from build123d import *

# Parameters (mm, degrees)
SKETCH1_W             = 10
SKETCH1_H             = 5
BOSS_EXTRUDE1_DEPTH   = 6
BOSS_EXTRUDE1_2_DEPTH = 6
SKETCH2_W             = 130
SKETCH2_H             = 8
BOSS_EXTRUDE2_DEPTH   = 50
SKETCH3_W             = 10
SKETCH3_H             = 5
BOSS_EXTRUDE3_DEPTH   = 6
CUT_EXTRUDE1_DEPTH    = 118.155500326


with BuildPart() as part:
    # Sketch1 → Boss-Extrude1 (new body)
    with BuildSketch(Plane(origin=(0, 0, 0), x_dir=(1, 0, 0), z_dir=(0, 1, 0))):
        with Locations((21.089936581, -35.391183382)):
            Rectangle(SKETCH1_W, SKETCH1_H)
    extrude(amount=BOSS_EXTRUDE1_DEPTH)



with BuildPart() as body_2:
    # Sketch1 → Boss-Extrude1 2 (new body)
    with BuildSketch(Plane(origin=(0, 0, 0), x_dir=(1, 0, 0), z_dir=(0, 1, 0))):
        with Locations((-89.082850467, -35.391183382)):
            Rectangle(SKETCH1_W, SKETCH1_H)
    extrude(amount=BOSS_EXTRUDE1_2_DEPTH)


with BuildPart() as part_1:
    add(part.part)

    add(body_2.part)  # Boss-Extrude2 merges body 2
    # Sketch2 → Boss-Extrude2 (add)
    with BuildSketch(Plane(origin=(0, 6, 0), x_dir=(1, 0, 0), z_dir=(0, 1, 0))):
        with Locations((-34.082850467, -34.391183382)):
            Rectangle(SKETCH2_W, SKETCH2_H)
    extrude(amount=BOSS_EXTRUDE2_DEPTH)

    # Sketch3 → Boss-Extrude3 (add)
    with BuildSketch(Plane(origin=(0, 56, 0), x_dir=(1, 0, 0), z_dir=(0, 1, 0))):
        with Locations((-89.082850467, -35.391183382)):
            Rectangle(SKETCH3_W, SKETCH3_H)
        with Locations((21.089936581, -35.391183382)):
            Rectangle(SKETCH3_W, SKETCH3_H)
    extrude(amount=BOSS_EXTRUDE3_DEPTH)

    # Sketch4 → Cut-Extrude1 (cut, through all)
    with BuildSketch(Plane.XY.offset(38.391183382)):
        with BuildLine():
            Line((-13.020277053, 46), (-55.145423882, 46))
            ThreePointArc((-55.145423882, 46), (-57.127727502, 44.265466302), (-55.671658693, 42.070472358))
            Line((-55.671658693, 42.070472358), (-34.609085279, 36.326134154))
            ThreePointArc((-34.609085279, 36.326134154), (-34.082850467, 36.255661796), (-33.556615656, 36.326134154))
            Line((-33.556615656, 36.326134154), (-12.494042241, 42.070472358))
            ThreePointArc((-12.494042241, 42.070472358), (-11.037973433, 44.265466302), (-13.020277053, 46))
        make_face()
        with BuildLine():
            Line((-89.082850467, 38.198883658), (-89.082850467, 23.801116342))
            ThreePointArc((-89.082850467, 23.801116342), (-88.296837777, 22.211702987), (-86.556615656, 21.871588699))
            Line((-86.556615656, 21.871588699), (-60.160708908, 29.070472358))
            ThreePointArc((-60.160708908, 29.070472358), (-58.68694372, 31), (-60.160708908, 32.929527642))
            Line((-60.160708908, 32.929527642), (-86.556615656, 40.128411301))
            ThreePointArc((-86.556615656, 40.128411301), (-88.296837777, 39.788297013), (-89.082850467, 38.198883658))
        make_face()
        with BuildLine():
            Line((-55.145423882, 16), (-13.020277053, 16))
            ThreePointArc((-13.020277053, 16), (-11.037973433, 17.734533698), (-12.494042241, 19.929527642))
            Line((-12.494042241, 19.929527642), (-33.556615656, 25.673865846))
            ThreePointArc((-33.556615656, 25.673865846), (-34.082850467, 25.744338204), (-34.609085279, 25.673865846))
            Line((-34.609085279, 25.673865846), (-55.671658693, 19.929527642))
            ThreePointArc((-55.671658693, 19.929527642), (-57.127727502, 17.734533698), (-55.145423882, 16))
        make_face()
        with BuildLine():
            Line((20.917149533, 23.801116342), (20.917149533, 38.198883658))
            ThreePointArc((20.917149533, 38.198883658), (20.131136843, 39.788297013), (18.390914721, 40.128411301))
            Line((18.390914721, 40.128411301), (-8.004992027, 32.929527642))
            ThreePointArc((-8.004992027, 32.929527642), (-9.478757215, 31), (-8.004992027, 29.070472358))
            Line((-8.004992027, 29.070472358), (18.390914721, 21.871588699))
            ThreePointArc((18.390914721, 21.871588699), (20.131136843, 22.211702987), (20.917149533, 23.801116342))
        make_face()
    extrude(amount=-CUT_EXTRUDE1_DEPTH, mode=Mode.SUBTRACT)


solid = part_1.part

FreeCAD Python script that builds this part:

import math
import FreeCAD as App
import Part
import Sketcher

V = App.Vector

doc = App.newDocument("Part")
params = doc.addObject("Spreadsheet::Sheet", "Params")
for row, (alias, value) in enumerate([
    ("sketch1_width", "10 mm"),
    ("sketch1_height", "5 mm"),
    ("pad1_length", "6 mm"),
    ("sketch2_width", "10 mm"),
    ("sketch2_height", "5 mm"),
    ("pad2_length", "6 mm"),
    ("sketch3_width", "130 mm"),
    ("sketch3_height", "8 mm"),
    ("pad3_length", "50 mm"),
    ("sketch4_width", "10 mm"),
    ("sketch4_height", "5 mm"),
    ("pad4_length", "6 mm"),
    ("sketch5_radius", "2 mm"),
], start=1):
    params.set(f"A{row}", alias)
    params.set(f"B{row}", "=" + value)
    params.setAlias(f"B{row}", alias)

body = doc.addObject("PartDesign::Body", "Body")

sketch1 = body.newObject("Sketcher::SketchObject", "Sketch")
sketch1.AttachmentSupport = (doc.getObject("XZ_Plane"), [""])
sketch1.MapMode = "FlatFace"
sketch1.addGeometry(Part.LineSegment(V(16, 33, 0), V(16, 38, 0)), False)
sketch1.addGeometry(Part.LineSegment(V(16, 38, 0), V(26, 38, 0)), False)
sketch1.addGeometry(Part.LineSegment(V(26, 38, 0), V(26, 33, 0)), False)
sketch1.addGeometry(Part.LineSegment(V(26, 33, 0), V(16, 33, 0)), False)
sketch1.addConstraint(Sketcher.Constraint("Coincident", 0, 2, 1, 1))
sketch1.addConstraint(Sketcher.Constraint("Coincident", 1, 2, 2, 1))
sketch1.addConstraint(Sketcher.Constraint("Coincident", 2, 2, 3, 1))
sketch1.addConstraint(Sketcher.Constraint("Coincident", 3, 2, 0, 1))
sketch1.addConstraint(Sketcher.Constraint("Vertical", 0))
sketch1.addConstraint(Sketcher.Constraint("Horizontal", 1))
sketch1.addConstraint(Sketcher.Constraint("Vertical", 2))
sketch1.addConstraint(Sketcher.Constraint("Horizontal", 3))
sketch1.addConstraint(Sketcher.Constraint("DistanceX", 1, 1, 1, 2, 10.0))
sketch1.addConstraint(Sketcher.Constraint("DistanceY", 0, 1, 0, 2, 5.0))
sketch1.addConstraint(Sketcher.Constraint("DistanceX", -1, 1, 0, 2, 16.089937))
sketch1.addConstraint(Sketcher.Constraint("DistanceY", -1, 1, 0, 2, 37.891183))
sketch1.setExpression("Constraints[8]", "Params.sketch1_width")
sketch1.setExpression("Constraints[9]", "Params.sketch1_height")
pad1 = body.newObject("PartDesign::Pad", "Pad")
pad1.Profile = sketch1
pad1.setExpression("Length", "Params.pad1_length")
pad1.Reversed = True
body2 = doc.addObject("PartDesign::Body", "Body001")

sketch2 = body2.newObject("Sketcher::SketchObject", "Sketch001")
sketch2.AttachmentSupport = (doc.getObject("XZ_Plane001"), [""])
sketch2.MapMode = "FlatFace"
sketch2.addGeometry(Part.LineSegment(V(-94, 33, 0), V(-94, 38, 0)), False)
sketch2.addGeometry(Part.LineSegment(V(-94, 38, 0), V(-84, 38, 0)), False)
sketch2.addGeometry(Part.LineSegment(V(-84, 38, 0), V(-84, 33, 0)), False)
sketch2.addGeometry(Part.LineSegment(V(-84, 33, 0), V(-94, 33, 0)), False)
sketch2.addConstraint(Sketcher.Constraint("Coincident", 0, 2, 1, 1))
sketch2.addConstraint(Sketcher.Constraint("Coincident", 1, 2, 2, 1))
sketch2.addConstraint(Sketcher.Constraint("Coincident", 2, 2, 3, 1))
sketch2.addConstraint(Sketcher.Constraint("Coincident", 3, 2, 0, 1))
sketch2.addConstraint(Sketcher.Constraint("Vertical", 0))
sketch2.addConstraint(Sketcher.Constraint("Horizontal", 1))
sketch2.addConstraint(Sketcher.Constraint("Vertical", 2))
sketch2.addConstraint(Sketcher.Constraint("Horizontal", 3))
sketch2.addConstraint(Sketcher.Constraint("DistanceX", 1, 1, 1, 2, 10.0))
sketch2.addConstraint(Sketcher.Constraint("DistanceY", 0, 1, 0, 2, 5.0))
sketch2.addConstraint(Sketcher.Constraint("DistanceX", 0, 2, -1, 1, 94.08285))
sketch2.addConstraint(Sketcher.Constraint("DistanceY", -1, 1, 0, 2, 37.891183))
sketch2.setExpression("Constraints[8]", "Params.sketch2_width")
sketch2.setExpression("Constraints[9]", "Params.sketch2_height")
pad2 = body2.newObject("PartDesign::Pad", "Pad001")
pad2.Profile = sketch2
pad2.setExpression("Length", "Params.pad2_length")
pad2.Reversed = True
body.AllowCompound = True
doc.recompute()

boolean = body.newObject("PartDesign::Boolean", "Boolean")
boolean.Type = "Fuse"
boolean.addObjects([body2])

sketch3 = body.newObject("Sketcher::SketchObject", "Sketch002")
sketch3.AttachmentSupport = (doc.getObject("XZ_Plane"), [""])
sketch3.MapMode = "FlatFace"
sketch3.AttachmentOffset = App.Placement(V(0, 0, -6), App.Rotation())
sketch3.addGeometry(Part.LineSegment(V(-99, 30, 0), V(-99, 38, 0)), False)
sketch3.addGeometry(Part.LineSegment(V(-99, 38, 0), V(31, 38, 0)), False)
sketch3.addGeometry(Part.LineSegment(V(31, 38, 0), V(31, 30, 0)), False)
sketch3.addGeometry(Part.LineSegment(V(31, 30, 0), V(-99, 30, 0)), False)
sketch3.addConstraint(Sketcher.Constraint("Coincident", 0, 2, 1, 1))
sketch3.addConstraint(Sketcher.Constraint("Coincident", 1, 2, 2, 1))
sketch3.addConstraint(Sketcher.Constraint("Coincident", 2, 2, 3, 1))
sketch3.addConstraint(Sketcher.Constraint("Coincident", 3, 2, 0, 1))
sketch3.addConstraint(Sketcher.Constraint("Vertical", 0))
sketch3.addConstraint(Sketcher.Constraint("Horizontal", 1))
sketch3.addConstraint(Sketcher.Constraint("Vertical", 2))
sketch3.addConstraint(Sketcher.Constraint("Horizontal", 3))
sketch3.addConstraint(Sketcher.Constraint("DistanceX", 1, 1, 1, 2, 130.0))
sketch3.addConstraint(Sketcher.Constraint("DistanceY", 0, 1, 0, 2, 8.0))
sketch3.addConstraint(Sketcher.Constraint("DistanceX", 0, 2, -1, 1, 99.08285))
sketch3.addConstraint(Sketcher.Constraint("DistanceY", -1, 1, 0, 2, 38.391183))
sketch3.setExpression("Constraints[8]", "Params.sketch3_width")
sketch3.setExpression("Constraints[9]", "Params.sketch3_height")
pad3 = body.newObject("PartDesign::Pad", "Pad002")
pad3.Profile = sketch3
pad3.setExpression("Length", "Params.pad3_length")
pad3.Reversed = True

sketch4 = body.newObject("Sketcher::SketchObject", "Sketch003")
sketch4.AttachmentSupport = (doc.getObject("XZ_Plane"), [""])
sketch4.MapMode = "FlatFace"
sketch4.AttachmentOffset = App.Placement(V(0, 0, -56), App.Rotation())
sketch4.addGeometry(Part.LineSegment(V(-94, 33, 0), V(-94, 38, 0)), False)
sketch4.addGeometry(Part.LineSegment(V(-94, 38, 0), V(-84, 38, 0)), False)
sketch4.addGeometry(Part.LineSegment(V(-84, 38, 0), V(-84, 33, 0)), False)
sketch4.addGeometry(Part.LineSegment(V(-84, 33, 0), V(-94, 33, 0)), False)
sketch4.addGeometry(Part.LineSegment(V(16, 33, 0), V(16, 38, 0)), False)
sketch4.addGeometry(Part.LineSegment(V(16, 38, 0), V(26, 38, 0)), False)
sketch4.addGeometry(Part.LineSegment(V(26, 38, 0), V(26, 33, 0)), False)
sketch4.addGeometry(Part.LineSegment(V(26, 33, 0), V(16, 33, 0)), False)
sketch4.addConstraint(Sketcher.Constraint("Coincident", 0, 2, 1, 1))
sketch4.addConstraint(Sketcher.Constraint("Coincident", 1, 2, 2, 1))
sketch4.addConstraint(Sketcher.Constraint("Coincident", 2, 2, 3, 1))
sketch4.addConstraint(Sketcher.Constraint("Coincident", 3, 2, 0, 1))
sketch4.addConstraint(Sketcher.Constraint("Coincident", 4, 2, 5, 1))
sketch4.addConstraint(Sketcher.Constraint("Coincident", 5, 2, 6, 1))
sketch4.addConstraint(Sketcher.Constraint("Coincident", 6, 2, 7, 1))
sketch4.addConstraint(Sketcher.Constraint("Coincident", 7, 2, 4, 1))
sketch4.addConstraint(Sketcher.Constraint("Vertical", 0))
sketch4.addConstraint(Sketcher.Constraint("Horizontal", 1))
sketch4.addConstraint(Sketcher.Constraint("Vertical", 2))
sketch4.addConstraint(Sketcher.Constraint("Horizontal", 3))
sketch4.addConstraint(Sketcher.Constraint("Vertical", 4))
sketch4.addConstraint(Sketcher.Constraint("Horizontal", 5))
sketch4.addConstraint(Sketcher.Constraint("Vertical", 6))
sketch4.addConstraint(Sketcher.Constraint("Horizontal", 7))
sketch4.addConstraint(Sketcher.Constraint("Horizontal", 1, 2, 4, 2))
sketch4.addConstraint(Sketcher.Constraint("Horizontal", 3, 2, 6, 2))
sketch4.addConstraint(Sketcher.Constraint("Equal", 3, 5))
sketch4.addConstraint(Sketcher.Constraint("DistanceX", 1, 1, 1, 2, 10.0))
sketch4.addConstraint(Sketcher.Constraint("DistanceY", 0, 1, 0, 2, 5.0))
sketch4.addConstraint(Sketcher.Constraint("DistanceX", 0, 2, -1, 1, 94.08285))
sketch4.addConstraint(Sketcher.Constraint("DistanceY", -1, 1, 0, 2, 37.891183))
sketch4.addConstraint(Sketcher.Constraint("DistanceX", -1, 1, 4, 2, 16.089937))
sketch4.setExpression("Constraints[19]", "Params.sketch4_width")
sketch4.setExpression("Constraints[20]", "Params.sketch4_height")
pad4 = body.newObject("PartDesign::Pad", "Pad003")
pad4.Profile = sketch4
pad4.setExpression("Length", "Params.pad4_length")
pad4.Reversed = True

sketch5 = body.newObject("Sketcher::SketchObject", "Sketch004")
sketch5.AttachmentSupport = (doc.getObject("XY_Plane"), [""])
sketch5.MapMode = "FlatFace"
sketch5.AttachmentOffset = App.Placement(V(0, 0, 38.391183), App.Rotation())
sketch5.addGeometry(Part.LineSegment(V(-13, 46, 0), V(-55.1, 46, 0)), False)
sketch5.addGeometry(Part.ArcOfCircle(Part.Circle(V(-55.1, 44, 0), V(0, 0, 1), 2), math.radians(90), math.radians(255)), False)
sketch5.addGeometry(Part.LineSegment(V(-55.7, 42.1, 0), V(-34.6, 36.3, 0)), False)
sketch5.addGeometry(Part.ArcOfCircle(Part.Circle(V(-34.1, 38.3, 0), V(0, 0, 1), 2), math.radians(-105), math.radians(-75)), False)
sketch5.addGeometry(Part.LineSegment(V(-33.6, 36.3, 0), V(-12.5, 42.1, 0)), False)
sketch5.addGeometry(Part.ArcOfCircle(Part.Circle(V(-13, 44, 0), V(0, 0, 1), 2), math.radians(-75), math.radians(90)), False)
sketch5.addGeometry(Part.LineSegment(V(-89.1, 38.2, 0), V(-89.1, 23.8, 0)), False)
sketch5.addGeometry(Part.ArcOfCircle(Part.Circle(V(-87.1, 23.8, 0), V(0, 0, 1), 2), math.radians(180), math.radians(285)), False)
sketch5.addGeometry(Part.LineSegment(V(-86.6, 21.9, 0), V(-60.2, 29.1, 0)), False)
sketch5.addGeometry(Part.ArcOfCircle(Part.Circle(V(-60.7, 31, 0), V(0, 0, 1), 2), math.radians(-75), math.radians(75)), False)
sketch5.addGeometry(Part.LineSegment(V(-60.2, 32.9, 0), V(-86.6, 40.1, 0)), False)
sketch5.addGeometry(Part.ArcOfCircle(Part.Circle(V(-87.1, 38.2, 0), V(0, 0, 1), 2), math.radians(75), math.radians(180)), False)
sketch5.addGeometry(Part.LineSegment(V(-55.1, 16, 0), V(-13, 16, 0)), False)
sketch5.addGeometry(Part.ArcOfCircle(Part.Circle(V(-13, 18, 0), V(0, 0, 1), 2), math.radians(-90), math.radians(75)), False)
sketch5.addGeometry(Part.LineSegment(V(-12.5, 19.9, 0), V(-33.6, 25.7, 0)), False)
sketch5.addGeometry(Part.ArcOfCircle(Part.Circle(V(-34.1, 23.7, 0), V(0, 0, 1), 2), math.radians(75), math.radians(105)), False)
sketch5.addGeometry(Part.LineSegment(V(-34.6, 25.7, 0), V(-55.7, 19.9, 0)), False)
sketch5.addGeometry(Part.ArcOfCircle(Part.Circle(V(-55.1, 18, 0), V(0, 0, 1), 2), math.radians(105), math.radians(270)), False)
sketch5.addGeometry(Part.LineSegment(V(20.9, 23.8, 0), V(20.9, 38.2, 0)), False)
sketch5.addGeometry(Part.ArcOfCircle(Part.Circle(V(18.9, 38.2, 0), V(0, 0, 1), 2), math.radians(0), math.radians(105)), False)
sketch5.addGeometry(Part.LineSegment(V(18.4, 40.1, 0), V(-8, 32.9, 0)), False)
sketch5.addGeometry(Part.ArcOfCircle(Part.Circle(V(-7.5, 31, 0), V(0, 0, 1), 2), math.radians(105), math.radians(255)), False)
sketch5.addGeometry(Part.LineSegment(V(-8, 29.1, 0), V(18.4, 21.9, 0)), False)
sketch5.addGeometry(Part.ArcOfCircle(Part.Circle(V(18.9, 23.8, 0), V(0, 0, 1), 2), math.radians(-105), math.radians(0)), False)
sketch5.addConstraint(Sketcher.Constraint("Tangent", 0, 2, 1, 1))
sketch5.addConstraint(Sketcher.Constraint("Tangent", 1, 2, 2, 1))
sketch5.addConstraint(Sketcher.Constraint("Tangent", 2, 2, 3, 1))
sketch5.addConstraint(Sketcher.Constraint("Tangent", 3, 2, 4, 1))
sketch5.addConstraint(Sketcher.Constraint("Tangent", 4, 2, 5, 1))
sketch5.addConstraint(Sketcher.Constraint("Tangent", 5, 2, 0, 1))
sketch5.addConstraint(Sketcher.Constraint("Tangent", 6, 2, 7, 1))
sketch5.addConstraint(Sketcher.Constraint("Tangent", 7, 2, 8, 1))
sketch5.addConstraint(Sketcher.Constraint("Tangent", 8, 2, 9, 1))
sketch5.addConstraint(Sketcher.Constraint("Tangent", 9, 2, 10, 1))
sketch5.addConstraint(Sketcher.Constraint("Tangent", 10, 2, 11, 1))
sketch5.addConstraint(Sketcher.Constraint("Tangent", 11, 2, 6, 1))
sketch5.addConstraint(Sketcher.Constraint("Tangent", 12, 2, 13, 1))
sketch5.addConstraint(Sketcher.Constraint("Tangent", 13, 2, 14, 1))
sketch5.addConstraint(Sketcher.Constraint("Tangent", 14, 2, 15, 1))
sketch5.addConstraint(Sketcher.Constraint("Tangent", 15, 2, 16, 1))
sketch5.addConstraint(Sketcher.Constraint("Tangent", 16, 2, 17, 1))
sketch5.addConstraint(Sketcher.Constraint("Tangent", 17, 2, 12, 1))
sketch5.addConstraint(Sketcher.Constraint("Tangent", 18, 2, 19, 1))
sketch5.addConstraint(Sketcher.Constraint("Tangent", 19, 2, 20, 1))
sketch5.addConstraint(Sketcher.Constraint("Tangent", 20, 2, 21, 1))
sketch5.addConstraint(Sketcher.Constraint("Tangent", 21, 2, 22, 1))
sketch5.addConstraint(Sketcher.Constraint("Tangent", 22, 2, 23, 1))
sketch5.addConstraint(Sketcher.Constraint("Tangent", 23, 2, 18, 1))
sketch5.addConstraint(Sketcher.Constraint("Horizontal", 0))
sketch5.addConstraint(Sketcher.Constraint("Vertical", 6))
sketch5.addConstraint(Sketcher.Constraint("Horizontal", 12))
sketch5.addConstraint(Sketcher.Constraint("Vertical", 18))
sketch5.addConstraint(Sketcher.Constraint("Equal", 1, 3))
sketch5.addConstraint(Sketcher.Constraint("Equal", 3, 5))
sketch5.addConstraint(Sketcher.Constraint("Equal", 5, 7))
sketch5.addConstraint(Sketcher.Constraint("Equal", 7, 9))
sketch5.addConstraint(Sketcher.Constraint("Equal", 9, 11))
sketch5.addConstraint(Sketcher.Constraint("Equal", 11, 13))
sketch5.addConstraint(Sketcher.Constraint("Equal", 13, 15))
sketch5.addConstraint(Sketcher.Constraint("Equal", 15, 17))
sketch5.addConstraint(Sketcher.Constraint("Equal", 17, 19))
sketch5.addConstraint(Sketcher.Constraint("Equal", 19, 21))
sketch5.addConstraint(Sketcher.Constraint("Equal", 21, 23))
sketch5.addConstraint(Sketcher.Constraint("Parallel", 4, 8))
sketch5.addConstraint(Sketcher.Constraint("Parallel", 2, 10))
sketch5.addConstraint(Sketcher.Constraint("Parallel", 10, 14))
sketch5.addConstraint(Sketcher.Constraint("Parallel", 8, 16))
sketch5.addConstraint(Sketcher.Constraint("Parallel", 16, 20))
sketch5.addConstraint(Sketcher.Constraint("Parallel", 14, 22))
sketch5.addConstraint(Sketcher.Constraint("Horizontal", 11, 3, 19, 3))
sketch5.addConstraint(Sketcher.Constraint("Horizontal", 9, 3, 21, 3))
sketch5.addConstraint(Sketcher.Constraint("Horizontal", 7, 3, 23, 3))
sketch5.addConstraint(Sketcher.Constraint("Vertical", 5, 3, 13, 3))
sketch5.addConstraint(Sketcher.Constraint("Vertical", 3, 3, 15, 3))
sketch5.addConstraint(Sketcher.Constraint("Radius", 1, 2.0))
sketch5.addConstraint(Sketcher.Constraint("DistanceY", -1, 1, 1, 3, 44.0))
sketch5.addConstraint(Sketcher.Constraint("DistanceY", -1, 1, 9, 3, 31.0))
sketch5.addConstraint(Sketcher.Constraint("DistanceY", -1, 1, 13, 3, 18.0))
sketch5.addConstraint(Sketcher.Constraint("DistanceX", 7, 3, 3, 3, 53.0))
sketch5.addConstraint(Sketcher.Constraint("DistanceX", 3, 3, 19, 3, 53.0))
sketch5.addConstraint(Sketcher.Constraint("DistanceX", 0, 2, 0, 1, 42.125147))
sketch5.addConstraint(Sketcher.Constraint("DistanceY", 6, 2, 6, 1, 14.397767))
sketch5.addConstraint(Sketcher.Constraint("DistanceX", 3, 3, -1, 1, 34.08285))
sketch5.addConstraint(Sketcher.Constraint("DistanceY", -1, 1, 3, 3, 38.255662))
sketch5.setExpression("Constraints[50]", "Params.sketch5_radius")
pocket1 = body.newObject("PartDesign::Pocket", "Pocket")
pocket1.Profile = sketch5
pocket1.Type = "ThroughAll"

doc.recompute()
